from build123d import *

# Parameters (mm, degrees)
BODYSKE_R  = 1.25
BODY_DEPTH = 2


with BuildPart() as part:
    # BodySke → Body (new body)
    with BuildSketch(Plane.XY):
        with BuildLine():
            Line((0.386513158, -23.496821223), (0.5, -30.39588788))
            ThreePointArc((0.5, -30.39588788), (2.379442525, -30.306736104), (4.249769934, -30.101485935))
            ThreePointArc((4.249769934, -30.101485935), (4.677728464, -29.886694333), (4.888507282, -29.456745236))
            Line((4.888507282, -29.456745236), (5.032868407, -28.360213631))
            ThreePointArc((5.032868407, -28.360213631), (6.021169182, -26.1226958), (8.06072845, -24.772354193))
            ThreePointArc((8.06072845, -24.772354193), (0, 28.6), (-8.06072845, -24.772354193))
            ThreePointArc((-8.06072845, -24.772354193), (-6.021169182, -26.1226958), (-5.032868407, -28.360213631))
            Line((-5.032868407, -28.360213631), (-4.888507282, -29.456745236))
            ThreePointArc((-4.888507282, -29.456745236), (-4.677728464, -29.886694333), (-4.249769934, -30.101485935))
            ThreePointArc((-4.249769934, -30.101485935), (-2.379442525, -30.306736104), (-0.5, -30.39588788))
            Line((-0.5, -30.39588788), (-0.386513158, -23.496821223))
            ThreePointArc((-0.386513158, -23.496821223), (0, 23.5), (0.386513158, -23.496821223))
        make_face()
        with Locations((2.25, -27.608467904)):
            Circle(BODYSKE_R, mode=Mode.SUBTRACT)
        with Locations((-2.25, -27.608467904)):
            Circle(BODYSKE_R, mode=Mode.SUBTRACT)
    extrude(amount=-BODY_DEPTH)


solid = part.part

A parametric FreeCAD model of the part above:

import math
import FreeCAD as App
import Part
import Sketcher
from FreeCAD import Vector
Q = App.Units.Quantity

doc = App.newDocument("Part")
body = doc.addObject("PartDesign::Body", "Body")

sketch1 = body.newObject("Sketcher::SketchObject", "Sketch")
sketch1.AttachmentSupport = (doc.getObject("XY_Plane"), [""])
sketch1.MapMode = "FlatFace"
sketch1.addGeometry([
    Part.LineSegment(Vector(0.386513, -23.496821, 0), Vector(0.5, -30.395888, 0)),
    Part.ArcOfCircle(Part.Circle(Vector(0, 0, 0), Vector(0, 0, 1), 30.4), math.radians(-89.057593), math.radians(-81.964012)),
    Part.ArcOfCircle(Part.Circle(Vector(4.144924, -29.358851, 0), Vector(0, 0, 1), 0.75), math.radians(-81.964012), math.radians(-7.5)),
    Part.LineSegment(Vector(4.888507, -29.456745, 0), Vector(5.032868, -28.360214, 0)),
    Part.ArcOfCircle(Part.Circle(Vector(9.345252, -28.92795, 0), Vector(0, 0, 1), 4.349595), math.radians(107.17674), math.radians(172.5)),
    Part.ArcOfCircle(Part.Circle(Vector(0, 1.305124, 0), Vector(0, 0, 1), 27.294876), math.radians(-72.82326), math.radians(252.82326)),
    Part.ArcOfCircle(Part.Circle(Vector(-9.345252, -28.92795, 0), Vector(0, 0, 1), 4.349595), math.radians(7.5), math.radians(72.82326)),
    Part.LineSegment(Vector(-5.032868, -28.360214, 0), Vector(-4.888507, -29.456745, 0)),
    Part.ArcOfCircle(Part.Circle(Vector(-4.144924, -29.358851, 0), Vector(0, 0, 1), 0.75), math.radians(-172.5), math.radians(-98.035988)),
    Part.ArcOfCircle(Part.Circle(Vector(0, 0, 0), Vector(0, 0, 1), 30.4), math.radians(-98.035988), math.radians(-90.942407)),
    Part.LineSegment(Vector(-0.5, -30.395888, 0), Vector(-0.386513, -23.496821, 0)),
    Part.ArcOfCircle(Part.Circle(Vector(0, 0, 0), Vector(0, 0, 1), 23.5), math.radians(-89.057593), math.radians(269.057593)),
    Part.Circle(Vector(-2.25, -27.608468, 0), Vector(0, 0, 1), 1.25),
    Part.Circle(Vector(2.25, -27.608468, 0), Vector(0, 0, 1), 1.25),
], False)
sketch1.addConstraint([
    Sketcher.Constraint("Coincident", 0, 2, 1, 1),
    Sketcher.Constraint("Tangent", 1, 2, 2, 1),
    Sketcher.Constraint("Tangent", 2, 2, 3, 1),
    Sketcher.Constraint("Tangent", 3, 2, 4, 2),
    Sketcher.Constraint("Tangent", 4, 1, 5, 1),
    Sketcher.Constraint("Tangent", 5, 2, 6, 2),
    Sketcher.Constraint("Tangent", 6, 1, 7, 1),
    Sketcher.Constraint("Tangent", 7, 2, 8, 1),
    Sketcher.Constraint("Tangent", 8, 2, 9, 1),
    Sketcher.Constraint("Coincident", 9, 2, 10, 1),
    Sketcher.Constraint("Coincident", 10, 2, 11, 2),
    Sketcher.Constraint("Coincident", 11, 1, 0, 1),
    Sketcher.Constraint("Coincident", 1, 3, -1, 1),
    Sketcher.Constraint("Coincident", 9, 3, -1, 1),
    Sketcher.Constraint("Coincident", 11, 3, -1, 1),
    Sketcher.Constraint("Equal", 4, 6),
    Sketcher.Constraint("Equal", 2, 8),
    Sketcher.Constraint("Equal", 1, 9),
    Sketcher.Constraint("Equal", 12, 13),
    Sketcher.Constraint("Symmetric", 4, 3, 6, 3, -2),
    Sketcher.Constraint("Symmetric", 12, 3, 13, 3, -2),
    Sketcher.Constraint("Horizontal", 2, 3, 8, 3),
    Sketcher.Constraint("Horizontal", 0, 2, 9, 2),
    Sketcher.Constraint("Horizontal", 10, 2, 11, 1),
    Sketcher.Constraint("Diameter", 12, 2.5),
    Sketcher.Constraint("Radius", 1, 30.4),
    Sketcher.Constraint("Radius", 11, 23.5),
    Sketcher.Constraint("Radius", 2, 0.75),
    Sketcher.Constraint("Angle", 3, Q("82.5 deg")),
    Sketcher.Constraint("DistanceX", 9, 2, 0, 2, 1.0),
    Sketcher.Constraint("DistanceX", 12, 3, 13, 3, 4.5),
    Sketcher.Constraint("Radius", 4, 4.349595),
    Sketcher.Constraint("Radius", 5, 27.294876),
    Sketcher.Constraint("DistanceY", 2, 3, 4, 3, 0.430901),
    Sketcher.Constraint("DistanceY", 0, 2, 1, 2, 0.294402),
    Sketcher.Constraint("DistanceY", 10, 2, -1, 1, 23.496821),
    Sketcher.Constraint("DistanceY", 6, 3, 12, 3, 1.319482),
])
pad1 = body.newObject("PartDesign::Pad", "Pad")
pad1.Profile = sketch1
pad1.Length = 2
pad1.Reversed = True

doc.recompute()
